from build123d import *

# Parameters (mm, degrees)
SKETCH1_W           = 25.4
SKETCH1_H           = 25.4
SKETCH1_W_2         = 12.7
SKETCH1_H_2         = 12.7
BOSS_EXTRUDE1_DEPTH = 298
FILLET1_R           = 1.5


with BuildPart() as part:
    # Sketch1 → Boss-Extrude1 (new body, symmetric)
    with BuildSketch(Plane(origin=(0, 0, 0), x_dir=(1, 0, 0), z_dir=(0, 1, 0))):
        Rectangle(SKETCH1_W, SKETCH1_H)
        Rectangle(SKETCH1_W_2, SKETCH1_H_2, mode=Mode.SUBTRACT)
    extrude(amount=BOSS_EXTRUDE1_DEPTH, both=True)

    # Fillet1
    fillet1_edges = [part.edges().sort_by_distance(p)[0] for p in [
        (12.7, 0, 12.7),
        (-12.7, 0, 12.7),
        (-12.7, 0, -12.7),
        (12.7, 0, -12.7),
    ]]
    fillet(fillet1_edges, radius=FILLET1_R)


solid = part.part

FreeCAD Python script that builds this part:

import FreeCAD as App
import Part
import Sketcher

V = App.Vector


def edges_at(feature, points):
    """Names of the edges that pass closest to the given points."""
    edges = feature.Shape.Edges
    near = lambda p: min(range(len(edges)), key=lambda i: edges[i].distToShape(Part.Vertex(*p))[0])
    return sorted({f"Edge{near(p) + 1}" for p in points})


def add_polygon(sketch, points):
    """Adds a closed chain of lines whose ends are joined by coincident constraints."""
    first, n = sketch.GeometryCount, len(points)
    for a, b in zip(points, points[1:] + points[:1]):
        sketch.addGeometry(Part.LineSegment(App.Vector(*a, 0), App.Vector(*b, 0)), False)
    for i in range(n):
        sketch.addConstraint(Sketcher.Constraint("Coincident", first + i, 2, first + (i + 1) % n, 1))

doc = App.newDocument("Part")
body = doc.addObject("PartDesign::Body", "Body")

sketch1 = body.newObject("Sketcher::SketchObject", "Sketch")
sketch1.AttachmentSupport = (doc.getObject("XZ_Plane"), [""])
sketch1.MapMode = "FlatFace"
add_polygon(sketch1, [(-12.7, -12.7), (-12.7, 12.7), (12.7, 12.7), (12.7, -12.7)])
add_polygon(sketch1, [(6.35, 6.35), (-6.35, 6.35), (-6.35, -6.35), (6.35, -6.35)])
sketch1.addConstraint([
    Sketcher.Constraint("Vertical", 0),
    Sketcher.Constraint("Horizontal", 1),
    Sketcher.Constraint("Vertical", 2),
    Sketcher.Constraint("Horizontal", 3),
    Sketcher.Constraint("Horizontal", 4),
    Sketcher.Constraint("Vertical", 5),
    Sketcher.Constraint("Horizontal", 6),
    Sketcher.Constraint("Vertical", 7),
    Sketcher.Constraint("Symmetric", 0, 2, 2, 2, -1, 1),
    Sketcher.Constraint("Symmetric", 4, 2, 6, 2, -1, 1),
    Sketcher.Constraint("Equal", 3, 0),
    Sketcher.Constraint("Equal", 6, 5),
    Sketcher.Constraint("DistanceX", 1, 1, 1, 2, 25.4),
    Sketcher.Constraint("DistanceX", 4, 2, 4, 1, 12.7),
])
pad1 = body.newObject("PartDesign::Pad", "Pad")
pad1.Profile = sketch1
pad1.Length = 596
pad1.Midplane = True
doc.recompute()

fillet = body.newObject("PartDesign::Fillet", "Fillet")
fillet.Base = (pad1, edges_at(pad1, [
    (12.7, 0, 12.7),
    (-12.7, 0, 12.7),
    (-12.7, 0, -12.7),
    (12.7, 0, -12.7),
]))
fillet.Radius = 1.5

doc.recompute()
